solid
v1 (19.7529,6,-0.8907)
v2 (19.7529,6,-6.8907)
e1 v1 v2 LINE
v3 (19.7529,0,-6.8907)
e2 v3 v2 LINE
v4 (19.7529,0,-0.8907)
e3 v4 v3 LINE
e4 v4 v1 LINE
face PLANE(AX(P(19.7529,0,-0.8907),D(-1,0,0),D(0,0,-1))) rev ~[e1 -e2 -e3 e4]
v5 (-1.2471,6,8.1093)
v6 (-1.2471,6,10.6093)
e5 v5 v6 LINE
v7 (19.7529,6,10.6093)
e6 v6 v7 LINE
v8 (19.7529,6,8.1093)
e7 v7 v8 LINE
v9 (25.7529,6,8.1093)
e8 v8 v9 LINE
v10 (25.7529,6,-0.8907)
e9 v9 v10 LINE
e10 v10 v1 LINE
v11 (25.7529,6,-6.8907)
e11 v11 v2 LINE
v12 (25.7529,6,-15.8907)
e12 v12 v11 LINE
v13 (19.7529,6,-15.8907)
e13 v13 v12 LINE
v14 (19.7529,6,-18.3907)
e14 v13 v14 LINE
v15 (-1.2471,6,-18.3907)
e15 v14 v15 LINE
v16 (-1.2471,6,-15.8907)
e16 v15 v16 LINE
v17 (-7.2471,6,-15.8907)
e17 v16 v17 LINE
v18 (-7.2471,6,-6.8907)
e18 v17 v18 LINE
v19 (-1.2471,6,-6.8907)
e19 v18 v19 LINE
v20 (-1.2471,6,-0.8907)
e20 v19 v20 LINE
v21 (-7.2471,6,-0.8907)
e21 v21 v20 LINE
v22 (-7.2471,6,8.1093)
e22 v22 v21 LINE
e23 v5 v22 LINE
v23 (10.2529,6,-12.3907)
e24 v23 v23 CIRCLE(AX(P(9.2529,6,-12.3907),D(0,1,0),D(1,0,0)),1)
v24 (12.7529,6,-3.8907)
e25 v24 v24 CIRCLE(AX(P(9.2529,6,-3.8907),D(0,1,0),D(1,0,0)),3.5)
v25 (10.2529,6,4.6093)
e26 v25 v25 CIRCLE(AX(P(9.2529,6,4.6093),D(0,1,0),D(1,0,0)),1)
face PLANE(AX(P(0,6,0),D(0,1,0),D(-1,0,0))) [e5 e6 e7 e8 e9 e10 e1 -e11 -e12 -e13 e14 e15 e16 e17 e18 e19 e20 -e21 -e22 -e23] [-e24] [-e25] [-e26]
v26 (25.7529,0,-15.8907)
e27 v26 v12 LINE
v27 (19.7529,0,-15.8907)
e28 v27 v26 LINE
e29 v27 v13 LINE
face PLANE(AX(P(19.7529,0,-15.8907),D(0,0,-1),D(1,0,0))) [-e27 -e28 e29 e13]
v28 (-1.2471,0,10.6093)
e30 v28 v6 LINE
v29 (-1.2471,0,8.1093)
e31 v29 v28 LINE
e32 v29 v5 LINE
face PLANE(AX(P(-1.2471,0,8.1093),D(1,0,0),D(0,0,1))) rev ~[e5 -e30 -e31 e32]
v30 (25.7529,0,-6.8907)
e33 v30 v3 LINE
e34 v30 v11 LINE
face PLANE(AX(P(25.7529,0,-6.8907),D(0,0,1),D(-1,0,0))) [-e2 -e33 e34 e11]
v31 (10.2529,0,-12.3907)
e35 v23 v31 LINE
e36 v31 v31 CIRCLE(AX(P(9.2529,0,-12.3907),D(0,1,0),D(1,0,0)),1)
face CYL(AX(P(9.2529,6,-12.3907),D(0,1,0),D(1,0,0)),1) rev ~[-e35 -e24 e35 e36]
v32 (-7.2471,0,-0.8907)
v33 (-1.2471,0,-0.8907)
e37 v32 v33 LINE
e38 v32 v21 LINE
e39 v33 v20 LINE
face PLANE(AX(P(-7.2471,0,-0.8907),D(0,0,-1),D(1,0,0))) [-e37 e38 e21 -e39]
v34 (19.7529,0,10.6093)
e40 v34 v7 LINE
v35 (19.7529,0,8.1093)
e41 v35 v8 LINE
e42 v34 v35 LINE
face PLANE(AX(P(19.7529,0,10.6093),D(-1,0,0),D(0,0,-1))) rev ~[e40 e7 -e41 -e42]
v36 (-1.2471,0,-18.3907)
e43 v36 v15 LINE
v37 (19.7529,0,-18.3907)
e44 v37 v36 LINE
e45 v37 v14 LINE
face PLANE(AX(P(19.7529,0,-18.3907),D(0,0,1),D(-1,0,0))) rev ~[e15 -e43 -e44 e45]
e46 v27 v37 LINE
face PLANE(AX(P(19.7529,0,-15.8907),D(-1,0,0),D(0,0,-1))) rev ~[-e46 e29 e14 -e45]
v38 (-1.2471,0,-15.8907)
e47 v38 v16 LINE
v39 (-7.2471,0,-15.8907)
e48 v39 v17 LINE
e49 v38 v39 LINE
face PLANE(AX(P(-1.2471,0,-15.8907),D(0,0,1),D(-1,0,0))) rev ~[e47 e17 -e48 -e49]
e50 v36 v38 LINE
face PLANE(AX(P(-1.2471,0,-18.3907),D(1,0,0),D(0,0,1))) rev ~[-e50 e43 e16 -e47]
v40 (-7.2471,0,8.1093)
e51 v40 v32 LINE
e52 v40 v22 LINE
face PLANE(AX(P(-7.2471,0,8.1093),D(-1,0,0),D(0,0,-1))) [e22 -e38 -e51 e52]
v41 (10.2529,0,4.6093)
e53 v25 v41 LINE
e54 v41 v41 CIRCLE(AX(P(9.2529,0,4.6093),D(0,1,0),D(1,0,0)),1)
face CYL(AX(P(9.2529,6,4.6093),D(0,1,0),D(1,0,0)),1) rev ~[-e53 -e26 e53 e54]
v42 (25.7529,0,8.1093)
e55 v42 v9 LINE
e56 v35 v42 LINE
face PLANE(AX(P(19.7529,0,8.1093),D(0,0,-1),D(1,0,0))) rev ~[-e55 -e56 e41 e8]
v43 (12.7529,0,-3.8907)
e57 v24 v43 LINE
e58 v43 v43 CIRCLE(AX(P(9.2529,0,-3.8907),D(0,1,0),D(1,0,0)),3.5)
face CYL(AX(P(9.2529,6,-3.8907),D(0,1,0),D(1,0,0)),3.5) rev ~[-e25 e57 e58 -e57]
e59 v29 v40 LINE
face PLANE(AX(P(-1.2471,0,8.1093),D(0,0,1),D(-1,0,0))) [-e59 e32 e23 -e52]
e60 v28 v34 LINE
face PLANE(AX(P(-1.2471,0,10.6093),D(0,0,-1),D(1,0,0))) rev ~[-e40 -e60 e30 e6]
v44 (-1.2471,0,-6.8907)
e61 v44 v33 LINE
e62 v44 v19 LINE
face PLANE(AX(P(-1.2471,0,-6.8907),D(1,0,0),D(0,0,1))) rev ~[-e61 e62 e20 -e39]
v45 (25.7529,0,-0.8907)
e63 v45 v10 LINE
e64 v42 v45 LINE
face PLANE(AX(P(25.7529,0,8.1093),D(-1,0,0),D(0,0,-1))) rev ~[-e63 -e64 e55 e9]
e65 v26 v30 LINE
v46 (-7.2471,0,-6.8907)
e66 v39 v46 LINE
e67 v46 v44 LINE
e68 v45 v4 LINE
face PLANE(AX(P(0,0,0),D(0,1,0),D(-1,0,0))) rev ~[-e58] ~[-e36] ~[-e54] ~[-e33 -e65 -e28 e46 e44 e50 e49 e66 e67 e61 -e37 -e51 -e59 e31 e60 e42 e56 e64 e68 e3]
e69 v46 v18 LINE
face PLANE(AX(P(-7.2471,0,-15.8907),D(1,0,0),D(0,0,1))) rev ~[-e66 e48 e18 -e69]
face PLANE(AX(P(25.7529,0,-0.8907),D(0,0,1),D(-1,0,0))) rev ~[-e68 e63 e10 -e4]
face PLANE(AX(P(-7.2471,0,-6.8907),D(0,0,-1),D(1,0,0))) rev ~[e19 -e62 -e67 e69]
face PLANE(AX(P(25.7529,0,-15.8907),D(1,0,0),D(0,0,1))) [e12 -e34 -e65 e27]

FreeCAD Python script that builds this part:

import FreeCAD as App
import Part
import Sketcher
Q = App.Units.Quantity


def add_polygon(sketch, points):
    """Adds a closed chain of lines whose ends are joined by coincident constraints."""
    first, n = sketch.GeometryCount, len(points)
    for a, b in zip(points, points[1:] + points[:1]):
        sketch.addGeometry(Part.LineSegment(App.Vector(*a, 0), App.Vector(*b, 0)), False)
    for i in range(n):
        sketch.addConstraint(Sketcher.Constraint("Coincident", first + i, 2, first + (i + 1) % n, 1))

doc = App.newDocument("Part")
body = doc.addObject("PartDesign::Body", "Body")

# Sketch on XZ plane
sketch1 = body.newObject("Sketcher::SketchObject", "Sketch")
sketch1.AttachmentSupport = (doc.getObject("XZ_Plane"), [""])
sketch1.MapMode = "FlatFace"
add_polygon(sketch1, [(-1.2, 8.1), (-1.2, 10.6), (19.8, 10.6), (19.8, 8.1), (25.8, 8.1), (25.8, -0.9), (19.8, -0.9), (19.8, -6.9), (25.8, -6.9), (25.8, -15.9), (19.8, -15.9), (19.8, -18.4), (-1.2, -18.4), (-1.2, -15.9), (-7.2, -15.9), (-7.2, -6.9), (-1.2, -6.9), (-1.2, -0.9), (-7.2, -0.9), (-7.2, 8.1)])  # lines 0-19
sketch1.addConstraint([
    Sketcher.Constraint("Vertical", 0),
    Sketcher.Constraint("Horizontal", 1),
    Sketcher.Constraint("Vertical", 2),
    Sketcher.Constraint("Horizontal", 3),
    Sketcher.Constraint("Vertical", 4),
    Sketcher.Constraint("Horizontal", 5),
    Sketcher.Constraint("Vertical", 6),
    Sketcher.Constraint("Horizontal", 7),
    Sketcher.Constraint("Vertical", 8),
    Sketcher.Constraint("Horizontal", 9),
    Sketcher.Constraint("Vertical", 10),
    Sketcher.Constraint("Horizontal", 11),
    Sketcher.Constraint("Vertical", 12),
    Sketcher.Constraint("Horizontal", 13),
    Sketcher.Constraint("Vertical", 14),
    Sketcher.Constraint("Horizontal", 15),
    Sketcher.Constraint("Vertical", 16),
    Sketcher.Constraint("Horizontal", 17),
    Sketcher.Constraint("Vertical", 18),
    Sketcher.Constraint("Horizontal", 19),
    Sketcher.Constraint("Horizontal", 9, 2, 12, 2),
    Sketcher.Constraint("Horizontal", 7, 2, 14, 2),
    Sketcher.Constraint("Horizontal", 5, 2, 16, 2),
    Sketcher.Constraint("Horizontal", 3, 2, 18, 2),
    Sketcher.Constraint("Vertical", 2, 2, 5, 2),
    Sketcher.Constraint("Vertical", 4, 2, 7, 2),
    Sketcher.Constraint("Vertical", 6, 2, 9, 2),
    Sketcher.Constraint("Vertical", 0, 2, 11, 2),
    Sketcher.Constraint("Vertical", 12, 2, 15, 2),
    Sketcher.Constraint("Vertical", 14, 2, 17, 2),
    Sketcher.Constraint("Equal", 9, 13),
    Sketcher.Constraint("Equal", 19, 6),
    Sketcher.Constraint("Equal", 4, 8),
    Sketcher.Constraint("Equal", 2, 10),
    Sketcher.Constraint("DistanceX", 1, 1, 1, 2, Q("21 mm")),
    Sketcher.Constraint("DistanceX", 3, 1, 3, 2, Q("6 mm")),
    Sketcher.Constraint("DistanceY", 4, 2, 4, 1, Q("9 mm")),
    Sketcher.Constraint("DistanceY", 0, 1, 0, 2, Q("2.5 mm")),
    Sketcher.Constraint("DistanceX", 0, 2, -1, 1, Q("1.247 mm")),
    Sketcher.Constraint("DistanceY", -1, 1, 0, 2, Q("10.6093 mm")),
])
pad1 = body.newObject("PartDesign::Pad", "Pad")
pad1.Profile = sketch1
pad1.Length = 6
pad1.Reversed = True

# Sketch on XZ plane
sketch2 = body.newObject("Sketcher::SketchObject", "Sketch001")
sketch2.AttachmentSupport = (doc.getObject("XZ_Plane"), [""])
sketch2.MapMode = "FlatFace"
sketch2.AttachmentOffset = App.Placement(App.Vector(0, 0, -6), App.Rotation())
sketch2.addGeometry([
    Part.Circle(App.Vector(9.3, -12.4, 0), App.Vector(0, 0, 1), 1),
    Part.Circle(App.Vector(9.3, 4.6, 0), App.Vector(0, 0, 1), 1),
    Part.Circle(App.Vector(9.3, -3.9, 0), App.Vector(0, 0, 1), 3.5),
], False)
sketch2.addConstraint([
    Sketcher.Constraint("Equal", 0, 1),
    Sketcher.Constraint("Vertical", 0, 3, 1, 3),
    Sketcher.Constraint("Vertical", 1, 3, 2, 3),
    Sketcher.Constraint("Diameter", 0, Q("2 mm")),
    Sketcher.Constraint("Diameter", 2, Q("7 mm")),
    Sketcher.Constraint("DistanceY", 0, 3, 2, 3, Q("8.5 mm")),
    Sketcher.Constraint("DistanceY", 2, 3, 1, 3, Q("8.5 mm")),
    Sketcher.Constraint("DistanceX", -1, 1, 0, 3, Q("9.253 mm")),
    Sketcher.Constraint("DistanceY", 0, 3, -1, 1, Q("12.3907 mm")),
])
pocket1 = body.newObject("PartDesign::Pocket", "Pocket")
pocket1.Profile = sketch2
pocket1.Type = "ThroughAll"
pocket1.Reversed = True

doc.recompute()
